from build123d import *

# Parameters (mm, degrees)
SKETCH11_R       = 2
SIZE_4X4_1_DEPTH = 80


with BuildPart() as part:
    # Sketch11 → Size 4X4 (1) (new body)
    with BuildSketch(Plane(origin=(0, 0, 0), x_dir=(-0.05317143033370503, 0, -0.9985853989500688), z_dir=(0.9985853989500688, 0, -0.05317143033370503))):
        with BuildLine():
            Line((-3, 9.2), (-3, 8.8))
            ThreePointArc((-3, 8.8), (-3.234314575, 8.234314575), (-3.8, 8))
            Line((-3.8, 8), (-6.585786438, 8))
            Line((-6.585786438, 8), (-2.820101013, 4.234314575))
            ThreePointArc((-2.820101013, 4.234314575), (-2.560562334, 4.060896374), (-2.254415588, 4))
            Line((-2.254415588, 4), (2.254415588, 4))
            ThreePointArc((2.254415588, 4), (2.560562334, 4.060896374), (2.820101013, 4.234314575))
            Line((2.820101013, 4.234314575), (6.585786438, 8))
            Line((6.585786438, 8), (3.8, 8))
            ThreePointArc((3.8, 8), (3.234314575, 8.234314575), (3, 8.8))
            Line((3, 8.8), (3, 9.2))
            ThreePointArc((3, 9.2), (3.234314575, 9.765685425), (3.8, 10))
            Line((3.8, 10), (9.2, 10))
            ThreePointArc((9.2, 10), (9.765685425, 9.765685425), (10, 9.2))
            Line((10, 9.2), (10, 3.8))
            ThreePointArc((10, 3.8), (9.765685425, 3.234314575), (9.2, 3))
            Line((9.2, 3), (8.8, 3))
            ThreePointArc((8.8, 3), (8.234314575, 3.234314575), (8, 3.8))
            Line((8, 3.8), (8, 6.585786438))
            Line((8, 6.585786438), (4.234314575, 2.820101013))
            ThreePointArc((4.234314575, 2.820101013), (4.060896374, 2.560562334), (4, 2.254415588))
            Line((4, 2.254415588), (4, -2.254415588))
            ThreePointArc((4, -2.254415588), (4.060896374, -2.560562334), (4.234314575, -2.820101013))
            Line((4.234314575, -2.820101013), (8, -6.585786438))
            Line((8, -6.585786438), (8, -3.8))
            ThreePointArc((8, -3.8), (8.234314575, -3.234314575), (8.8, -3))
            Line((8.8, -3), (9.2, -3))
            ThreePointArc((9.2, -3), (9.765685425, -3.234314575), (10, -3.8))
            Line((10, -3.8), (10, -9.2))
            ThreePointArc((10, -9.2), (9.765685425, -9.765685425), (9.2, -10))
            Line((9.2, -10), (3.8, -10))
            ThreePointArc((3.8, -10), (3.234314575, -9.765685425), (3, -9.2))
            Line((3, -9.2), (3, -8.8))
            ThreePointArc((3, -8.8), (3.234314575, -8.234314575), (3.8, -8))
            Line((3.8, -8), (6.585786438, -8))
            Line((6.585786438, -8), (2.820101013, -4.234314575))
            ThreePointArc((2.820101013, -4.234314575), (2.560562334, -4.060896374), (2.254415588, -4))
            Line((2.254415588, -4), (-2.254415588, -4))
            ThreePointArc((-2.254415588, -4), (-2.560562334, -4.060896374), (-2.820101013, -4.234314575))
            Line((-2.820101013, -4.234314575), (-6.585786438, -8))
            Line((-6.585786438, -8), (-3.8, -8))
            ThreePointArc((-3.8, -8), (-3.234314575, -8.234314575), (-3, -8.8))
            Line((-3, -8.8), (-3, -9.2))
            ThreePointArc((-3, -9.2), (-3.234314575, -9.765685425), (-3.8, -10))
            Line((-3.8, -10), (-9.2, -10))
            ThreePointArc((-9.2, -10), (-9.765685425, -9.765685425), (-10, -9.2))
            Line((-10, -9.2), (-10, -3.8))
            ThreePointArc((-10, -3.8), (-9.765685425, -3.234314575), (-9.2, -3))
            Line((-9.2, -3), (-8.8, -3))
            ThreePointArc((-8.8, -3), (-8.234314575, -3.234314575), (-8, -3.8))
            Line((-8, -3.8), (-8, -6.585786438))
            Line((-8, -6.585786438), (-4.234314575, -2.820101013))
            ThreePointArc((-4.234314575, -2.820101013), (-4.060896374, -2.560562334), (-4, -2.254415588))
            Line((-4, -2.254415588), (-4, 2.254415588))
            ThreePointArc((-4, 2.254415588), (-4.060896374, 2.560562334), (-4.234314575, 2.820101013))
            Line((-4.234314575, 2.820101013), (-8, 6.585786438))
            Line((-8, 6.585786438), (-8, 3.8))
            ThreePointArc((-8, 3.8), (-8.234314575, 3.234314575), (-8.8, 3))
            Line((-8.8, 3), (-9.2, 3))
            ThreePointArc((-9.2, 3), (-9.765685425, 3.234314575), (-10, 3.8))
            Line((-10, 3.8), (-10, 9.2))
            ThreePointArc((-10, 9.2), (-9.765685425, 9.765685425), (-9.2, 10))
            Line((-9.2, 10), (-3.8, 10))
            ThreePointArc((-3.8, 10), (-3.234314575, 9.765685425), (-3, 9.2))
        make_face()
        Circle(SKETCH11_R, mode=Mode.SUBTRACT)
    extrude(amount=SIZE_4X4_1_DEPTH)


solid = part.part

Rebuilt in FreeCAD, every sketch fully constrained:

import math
import FreeCAD as App
import Part
import Sketcher

doc = App.newDocument("Part")
body = doc.addObject("PartDesign::Body", "Body")

sketch1 = body.newObject("Sketcher::SketchObject", "Sketch")
sketch1.Placement = App.Placement(App.Vector(0, 0, 0), App.Rotation(App.Vector(-0.05317143, 0, -0.998585399), App.Vector(0, 1, 0), App.Vector(0.998585399, 0, -0.05317143), "ZXY"))
sketch1.addGeometry(Part.LineSegment(App.Vector(-3, 8.8, 0), App.Vector(-3, 9.2, 0)), False)
sketch1.addGeometry(Part.ArcOfCircle(Part.Circle(App.Vector(-3.8, 9.2, 0), App.Vector(0, 0, 1), 0.8), math.radians(0), math.radians(90)), False)
sketch1.addGeometry(Part.LineSegment(App.Vector(-3.8, 10, 0), App.Vector(-9.2, 10, 0)), False)
sketch1.addGeometry(Part.ArcOfCircle(Part.Circle(App.Vector(-9.2, 9.2, 0), App.Vector(0, 0, 1), 0.8), math.radians(90), math.radians(180)), False)
sketch1.addGeometry(Part.LineSegment(App.Vector(-10, 9.2, 0), App.Vector(-10, 3.8, 0)), False)
sketch1.addGeometry(Part.ArcOfCircle(Part.Circle(App.Vector(-9.2, 3.8, 0), App.Vector(0, 0, 1), 0.8), math.radians(180), math.radians(270)), False)
sketch1.addGeometry(Part.LineSegment(App.Vector(-9.2, 3, 0), App.Vector(-8.8, 3, 0)), False)
sketch1.addGeometry(Part.ArcOfCircle(Part.Circle(App.Vector(-8.8, 3.8, 0), App.Vector(0, 0, 1), 0.8), math.radians(-90), math.radians(0)), False)
sketch1.addGeometry(Part.LineSegment(App.Vector(-8, 3.8, 0), App.Vector(-8, 6.59, 0)), False)
sketch1.addGeometry(Part.LineSegment(App.Vector(-8, 6.59, 0), App.Vector(-4.23, 2.82, 0)), False)
sketch1.addGeometry(Part.ArcOfCircle(Part.Circle(App.Vector(-4.8, 2.25, 0), App.Vector(0, 0, 1), 0.8), math.radians(0), math.radians(45)), False)
sketch1.addGeometry(Part.LineSegment(App.Vector(-4, 2.25, 0), App.Vector(-4, -2.25, 0)), False)
sketch1.addGeometry(Part.ArcOfCircle(Part.Circle(App.Vector(-4.8, -2.25, 0), App.Vector(0, 0, 1), 0.8), math.radians(-45), math.radians(0)), False)
sketch1.addGeometry(Part.LineSegment(App.Vector(-4.23, -2.82, 0), App.Vector(-8, -6.59, 0)), False)
sketch1.addGeometry(Part.LineSegment(App.Vector(-8, -6.59, 0), App.Vector(-8, -3.8, 0)), False)
sketch1.addGeometry(Part.ArcOfCircle(Part.Circle(App.Vector(-8.8, -3.8, 0), App.Vector(0, 0, 1), 0.8), math.radians(0), math.radians(90)), False)
sketch1.addGeometry(Part.LineSegment(App.Vector(-8.8, -3, 0), App.Vector(-9.2, -3, 0)), False)
sketch1.addGeometry(Part.ArcOfCircle(Part.Circle(App.Vector(-9.2, -3.8, 0), App.Vector(0, 0, 1), 0.8), math.radians(90), math.radians(180)), False)
sketch1.addGeometry(Part.LineSegment(App.Vector(-10, -3.8, 0), App.Vector(-10, -9.2, 0)), False)
sketch1.addGeometry(Part.ArcOfCircle(Part.Circle(App.Vector(-9.2, -9.2, 0), App.Vector(0, 0, 1), 0.8), math.radians(180), math.radians(270)), False)
sketch1.addGeometry(Part.LineSegment(App.Vector(-9.2, -10, 0), App.Vector(-3.8, -10, 0)), False)
sketch1.addGeometry(Part.ArcOfCircle(Part.Circle(App.Vector(-3.8, -9.2, 0), App.Vector(0, 0, 1), 0.8), math.radians(-90), math.radians(0)), False)
sketch1.addGeometry(Part.LineSegment(App.Vector(-3, -9.2, 0), App.Vector(-3, -8.8, 0)), False)
sketch1.addGeometry(Part.ArcOfCircle(Part.Circle(App.Vector(-3.8, -8.8, 0), App.Vector(0, 0, 1), 0.8), math.radians(0), math.radians(90)), False)
sketch1.addGeometry(Part.LineSegment(App.Vector(-3.8, -8, 0), App.Vector(-6.59, -8, 0)), False)
sketch1.addGeometry(Part.LineSegment(App.Vector(-6.59, -8, 0), App.Vector(-2.82, -4.23, 0)), False)
sketch1.addGeometry(Part.ArcOfCircle(Part.Circle(App.Vector(-2.25, -4.8, 0), App.Vector(0, 0, 1), 0.8), math.radians(90), math.radians(135)), False)
sketch1.addGeometry(Part.LineSegment(App.Vector(-2.25, -4, 0), App.Vector(2.25, -4, 0)), False)
sketch1.addGeometry(Part.ArcOfCircle(Part.Circle(App.Vector(2.25, -4.8, 0), App.Vector(0, 0, 1), 0.8), math.radians(45), math.radians(90)), False)
sketch1.addGeometry(Part.LineSegment(App.Vector(2.82, -4.23, 0), App.Vector(6.59, -8, 0)), False)
sketch1.addGeometry(Part.LineSegment(App.Vector(6.59, -8, 0), App.Vector(3.8, -8, 0)), False)
sketch1.addGeometry(Part.ArcOfCircle(Part.Circle(App.Vector(3.8, -8.8, 0), App.Vector(0, 0, 1), 0.8), math.radians(90), math.radians(180)), False)
sketch1.addGeometry(Part.LineSegment(App.Vector(3, -8.8, 0), App.Vector(3, -9.2, 0)), False)
sketch1.addGeometry(Part.ArcOfCircle(Part.Circle(App.Vector(3.8, -9.2, 0), App.Vector(0, 0, 1), 0.8), math.radians(180), math.radians(270)), False)
sketch1.addGeometry(Part.LineSegment(App.Vector(3.8, -10, 0), App.Vector(9.2, -10, 0)), False)
sketch1.addGeometry(Part.ArcOfCircle(Part.Circle(App.Vector(9.2, -9.2, 0), App.Vector(0, 0, 1), 0.8), math.radians(-90), math.radians(0)), False)
sketch1.addGeometry(Part.LineSegment(App.Vector(10, -9.2, 0), App.Vector(10, -3.8, 0)), False)
sketch1.addGeometry(Part.ArcOfCircle(Part.Circle(App.Vector(9.2, -3.8, 0), App.Vector(0, 0, 1), 0.8), math.radians(0), math.radians(90)), False)
sketch1.addGeometry(Part.LineSegment(App.Vector(9.2, -3, 0), App.Vector(8.8, -3, 0)), False)
sketch1.addGeometry(Part.ArcOfCircle(Part.Circle(App.Vector(8.8, -3.8, 0), App.Vector(0, 0, 1), 0.8), math.radians(90), math.radians(180)), False)
sketch1.addGeometry(Part.LineSegment(App.Vector(8, -3.8, 0), App.Vector(8, -6.59, 0)), False)
sketch1.addGeometry(Part.LineSegment(App.Vector(8, -6.59, 0), App.Vector(4.23, -2.82, 0)), False)
sketch1.addGeometry(Part.ArcOfCircle(Part.Circle(App.Vector(4.8, -2.25, 0), App.Vector(0, 0, 1), 0.8), math.radians(180), math.radians(225)), False)
sketch1.addGeometry(Part.LineSegment(App.Vector(4, -2.25, 0), App.Vector(4, 2.25, 0)), False)
sketch1.addGeometry(Part.ArcOfCircle(Part.Circle(App.Vector(4.8, 2.25, 0), App.Vector(0, 0, 1), 0.8), math.radians(135), math.radians(180)), False)
sketch1.addGeometry(Part.LineSegment(App.Vector(4.23, 2.82, 0), App.Vector(8, 6.59, 0)), False)
sketch1.addGeometry(Part.LineSegment(App.Vector(8, 6.59, 0), App.Vector(8, 3.8, 0)), False)
sketch1.addGeometry(Part.ArcOfCircle(Part.Circle(App.Vector(8.8, 3.8, 0), App.Vector(0, 0, 1), 0.8), math.radians(180), math.radians(270)), False)
sketch1.addGeometry(Part.LineSegment(App.Vector(8.8, 3, 0), App.Vector(9.2, 3, 0)), False)
sketch1.addGeometry(Part.ArcOfCircle(Part.Circle(App.Vector(9.2, 3.8, 0), App.Vector(0, 0, 1), 0.8), math.radians(-90), math.radians(0)), False)
sketch1.addGeometry(Part.LineSegment(App.Vector(10, 3.8, 0), App.Vector(10, 9.2, 0)), False)
sketch1.addGeometry(Part.ArcOfCircle(Part.Circle(App.Vector(9.2, 9.2, 0), App.Vector(0, 0, 1), 0.8), math.radians(0), math.radians(90)), False)
sketch1.addGeometry(Part.LineSegment(App.Vector(9.2, 10, 0), App.Vector(3.8, 10, 0)), False)
sketch1.addGeometry(Part.ArcOfCircle(Part.Circle(App.Vector(3.8, 9.2, 0), App.Vector(0, 0, 1), 0.8), math.radians(90), math.radians(180)), False)
sketch1.addGeometry(Part.LineSegment(App.Vector(3, 9.2, 0), App.Vector(3, 8.8, 0)), False)
sketch1.addGeometry(Part.ArcOfCircle(Part.Circle(App.Vector(3.8, 8.8, 0), App.Vector(0, 0, 1), 0.8), math.radians(180), math.radians(270)), False)
sketch1.addGeometry(Part.LineSegment(App.Vector(3.8, 8, 0), App.Vector(6.59, 8, 0)), False)
sketch1.addGeometry(Part.LineSegment(App.Vector(6.59, 8, 0), App.Vector(2.82, 4.23, 0)), False)
sketch1.addGeometry(Part.ArcOfCircle(Part.Circle(App.Vector(2.25, 4.8, 0), App.Vector(0, 0, 1), 0.8), math.radians(-90), math.radians(-45)), False)
sketch1.addGeometry(Part.LineSegment(App.Vector(2.25, 4, 0), App.Vector(-2.25, 4, 0)), False)
sketch1.addGeometry(Part.ArcOfCircle(Part.Circle(App.Vector(-2.25, 4.8, 0), App.Vector(0, 0, 1), 0.8), math.radians(-135), math.radians(-90)), False)
sketch1.addGeometry(Part.LineSegment(App.Vector(-2.82, 4.23, 0), App.Vector(-6.59, 8, 0)), False)
sketch1.addGeometry(Part.LineSegment(App.Vector(-6.59, 8, 0), App.Vector(-3.8, 8, 0)), False)
sketch1.addGeometry(Part.ArcOfCircle(Part.Circle(App.Vector(-3.8, 8.8, 0), App.Vector(0, 0, 1), 0.8), math.radians(-90), math.radians(0)), False)
sketch1.addGeometry(Part.Circle(App.Vector(0, 0, 0), App.Vector(0, 0, 1), 2), False)
sketch1.addConstraint(Sketcher.Constraint("Tangent", 0, 2, 1, 1))
sketch1.addConstraint(Sketcher.Constraint("Tangent", 1, 2, 2, 1))
sketch1.addConstraint(Sketcher.Constraint("Tangent", 2, 2, 3, 1))
sketch1.addConstraint(Sketcher.Constraint("Tangent", 3, 2, 4, 1))
sketch1.addConstraint(Sketcher.Constraint("Tangent", 4, 2, 5, 1))
sketch1.addConstraint(Sketcher.Constraint("Tangent", 5, 2, 6, 1))
sketch1.addConstraint(Sketcher.Constraint("Tangent", 6, 2, 7, 1))
sketch1.addConstraint(Sketcher.Constraint("Tangent", 7, 2, 8, 1))
sketch1.addConstraint(Sketcher.Constraint("Coincident", 8, 2, 9, 1))
sketch1.addConstraint(Sketcher.Constraint("Tangent", 9, 2, 10, 2))
sketch1.addConstraint(Sketcher.Constraint("Tangent", 10, 1, 11, 1))
sketch1.addConstraint(Sketcher.Constraint("Tangent", 11, 2, 12, 2))
sketch1.addConstraint(Sketcher.Constraint("Tangent", 12, 1, 13, 1))
sketch1.addConstraint(Sketcher.Constraint("Coincident", 13, 2, 14, 1))
sketch1.addConstraint(Sketcher.Constraint("Tangent", 14, 2, 15, 1))
sketch1.addConstraint(Sketcher.Constraint("Tangent", 15, 2, 16, 1))
sketch1.addConstraint(Sketcher.Constraint("Tangent", 16, 2, 17, 1))
sketch1.addConstraint(Sketcher.Constraint("Tangent", 17, 2, 18, 1))
sketch1.addConstraint(Sketcher.Constraint("Tangent", 18, 2, 19, 1))
sketch1.addConstraint(Sketcher.Constraint("Tangent", 19, 2, 20, 1))
sketch1.addConstraint(Sketcher.Constraint("Tangent", 20, 2, 21, 1))
sketch1.addConstraint(Sketcher.Constraint("Tangent", 21, 2, 22, 1))
sketch1.addConstraint(Sketcher.Constraint("Tangent", 22, 2, 23, 1))
sketch1.addConstraint(Sketcher.Constraint("Tangent", 23, 2, 24, 1))
sketch1.addConstraint(Sketcher.Constraint("Coincident", 24, 2, 25, 1))
sketch1.addConstraint(Sketcher.Constraint("Tangent", 25, 2, 26, 2))
sketch1.addConstraint(Sketcher.Constraint("Tangent", 26, 1, 27, 1))
sketch1.addConstraint(Sketcher.Constraint("Tangent", 27, 2, 28, 2))
sketch1.addConstraint(Sketcher.Constraint("Tangent", 28, 1, 29, 1))
sketch1.addConstraint(Sketcher.Constraint("Coincident", 29, 2, 30, 1))
sketch1.addConstraint(Sketcher.Constraint("Tangent", 30, 2, 31, 1))
sketch1.addConstraint(Sketcher.Constraint("Tangent", 31, 2, 32, 1))
sketch1.addConstraint(Sketcher.Constraint("Tangent", 32, 2, 33, 1))
sketch1.addConstraint(Sketcher.Constraint("Tangent", 33, 2, 34, 1))
sketch1.addConstraint(Sketcher.Constraint("Tangent", 34, 2, 35, 1))
sketch1.addConstraint(Sketcher.Constraint("Tangent", 35, 2, 36, 1))
sketch1.addConstraint(Sketcher.Constraint("Tangent", 36, 2, 37, 1))
sketch1.addConstraint(Sketcher.Constraint("Tangent", 37, 2, 38, 1))
sketch1.addConstraint(Sketcher.Constraint("Tangent", 38, 2, 39, 1))
sketch1.addConstraint(Sketcher.Constraint("Tangent", 39, 2, 40, 1))
sketch1.addConstraint(Sketcher.Constraint("Coincident", 40, 2, 41, 1))
sketch1.addConstraint(Sketcher.Constraint("Tangent", 41, 2, 42, 2))
sketch1.addConstraint(Sketcher.Constraint("Tangent", 42, 1, 43, 1))
sketch1.addConstraint(Sketcher.Constraint("Tangent", 43, 2, 44, 2))
sketch1.addConstraint(Sketcher.Constraint("Tangent", 44, 1, 45, 1))
sketch1.addConstraint(Sketcher.Constraint("Coincident", 45, 2, 46, 1))
sketch1.addConstraint(Sketcher.Constraint("Tangent", 46, 2, 47, 1))
sketch1.addConstraint(Sketcher.Constraint("Tangent", 47, 2, 48, 1))
sketch1.addConstraint(Sketcher.Constraint("Tangent", 48, 2, 49, 1))
sketch1.addConstraint(Sketcher.Constraint("Tangent", 49, 2, 50, 1))
sketch1.addConstraint(Sketcher.Constraint("Tangent", 50, 2, 51, 1))
sketch1.addConstraint(Sketcher.Constraint("Tangent", 51, 2, 52, 1))
sketch1.addConstraint(Sketcher.Constraint("Tangent", 52, 2, 53, 1))
sketch1.addConstraint(Sketcher.Constraint("Tangent", 53, 2, 54, 1))
sketch1.addConstraint(Sketcher.Constraint("Tangent", 54, 2, 55, 1))
sketch1.addConstraint(Sketcher.Constraint("Tangent", 55, 2, 56, 1))
sketch1.addConstraint(Sketcher.Constraint("Coincident", 56, 2, 57, 1))
sketch1.addConstraint(Sketcher.Constraint("Tangent", 57, 2, 58, 2))
sketch1.addConstraint(Sketcher.Constraint("Tangent", 58, 1, 59, 1))
sketch1.addConstraint(Sketcher.Constraint("Tangent", 59, 2, 60, 2))
sketch1.addConstraint(Sketcher.Constraint("Tangent", 60, 1, 61, 1))
sketch1.addConstraint(Sketcher.Constraint("Coincident", 61, 2, 62, 1))
sketch1.addConstraint(Sketcher.Constraint("Tangent", 62, 2, 63, 1))
sketch1.addConstraint(Sketcher.Constraint("Tangent", 63, 2, 0, 1))
sketch1.addConstraint(Sketcher.Constraint("Vertical", 0))
sketch1.addConstraint(Sketcher.Constraint("Horizontal", 2))
sketch1.addConstraint(Sketcher.Constraint("Vertical", 4))
sketch1.addConstraint(Sketcher.Constraint("Horizontal", 6))
sketch1.addConstraint(Sketcher.Constraint("Vertical", 8))
sketch1.addConstraint(Sketcher.Constraint("Vertical", 11))
sketch1.addConstraint(Sketcher.Constraint("Vertical", 14))
sketch1.addConstraint(Sketcher.Constraint("Horizontal", 16))
sketch1.addConstraint(Sketcher.Constraint("Vertical", 18))
sketch1.addConstraint(Sketcher.Constraint("Horizontal", 20))
sketch1.addConstraint(Sketcher.Constraint("Vertical", 22))
sketch1.addConstraint(Sketcher.Constraint("Horizontal", 24))
sketch1.addConstraint(Sketcher.Constraint("Horizontal", 27))
sketch1.addConstraint(Sketcher.Constraint("Horizontal", 30))
sketch1.addConstraint(Sketcher.Constraint("Vertical", 32))
sketch1.addConstraint(Sketcher.Constraint("Horizontal", 34))
sketch1.addConstraint(Sketcher.Constraint("Vertical", 36))
sketch1.addConstraint(Sketcher.Constraint("Horizontal", 38))
sketch1.addConstraint(Sketcher.Constraint("Vertical", 40))
sketch1.addConstraint(Sketcher.Constraint("Vertical", 43))
sketch1.addConstraint(Sketcher.Constraint("Vertical", 46))
sketch1.addConstraint(Sketcher.Constraint("Horizontal", 48))
sketch1.addConstraint(Sketcher.Constraint("Vertical", 50))
sketch1.addConstraint(Sketcher.Constraint("Horizontal", 52))
sketch1.addConstraint(Sketcher.Constraint("Vertical", 54))
sketch1.addConstraint(Sketcher.Constraint("Horizontal", 56))
sketch1.addConstraint(Sketcher.Constraint("Horizontal", 59))
sketch1.addConstraint(Sketcher.Constraint("Horizontal", 62))
sketch1.addConstraint(Sketcher.Constraint("Coincident", 64, 3, -1, 1))
sketch1.addConstraint(Sketcher.Constraint("Equal", 1, 3))
sketch1.addConstraint(Sketcher.Constraint("Equal", 3, 5))
sketch1.addConstraint(Sketcher.Constraint("Equal", 5, 7))
sketch1.addConstraint(Sketcher.Constraint("Equal", 7, 10))
sketch1.addConstraint(Sketcher.Constraint("Equal", 10, 12))
sketch1.addConstraint(Sketcher.Constraint("Equal", 12, 15))
sketch1.addConstraint(Sketcher.Constraint("Equal", 15, 17))
sketch1.addConstraint(Sketcher.Constraint("Equal", 17, 19))
sketch1.addConstraint(Sketcher.Constraint("Equal", 19, 21))
sketch1.addConstraint(Sketcher.Constraint("Equal", 21, 23))
sketch1.addConstraint(Sketcher.Constraint("Equal", 23, 26))
sketch1.addConstraint(Sketcher.Constraint("Equal", 26, 28))
sketch1.addConstraint(Sketcher.Constraint("Equal", 28, 31))
sketch1.addConstraint(Sketcher.Constraint("Equal", 31, 33))
sketch1.addConstraint(Sketcher.Constraint("Equal", 33, 35))
sketch1.addConstraint(Sketcher.Constraint("Equal", 35, 37))
sketch1.addConstraint(Sketcher.Constraint("Equal", 37, 39))
sketch1.addConstraint(Sketcher.Constraint("Equal", 39, 42))
sketch1.addConstraint(Sketcher.Constraint("Equal", 42, 44))
sketch1.addConstraint(Sketcher.Constraint("Equal", 44, 47))
sketch1.addConstraint(Sketcher.Constraint("Equal", 47, 49))
sketch1.addConstraint(Sketcher.Constraint("Equal", 49, 51))
sketch1.addConstraint(Sketcher.Constraint("Equal", 51, 53))
sketch1.addConstraint(Sketcher.Constraint("Equal", 53, 55))
sketch1.addConstraint(Sketcher.Constraint("Equal", 55, 58))
sketch1.addConstraint(Sketcher.Constraint("Equal", 58, 60))
sketch1.addConstraint(Sketcher.Constraint("Equal", 60, 63))
sketch1.addConstraint(Sketcher.Constraint("Symmetric", 1, 3, 33, 3, -1, 1))
sketch1.addConstraint(Sketcher.Constraint("Symmetric", 5, 3, 37, 3, -1, 1))
sketch1.addConstraint(Sketcher.Constraint("Symmetric", 10, 3, 42, 3, -1, 1))
sketch1.addConstraint(Sketcher.Constraint("Symmetric", 15, 3, 47, 3, -1, 1))
sketch1.addConstraint(Sketcher.Constraint("Symmetric", 19, 3, 51, 3, -1, 1))
sketch1.addConstraint(Sketcher.Constraint("Symmetric", 23, 3, 55, 3, -1, 1))
sketch1.addConstraint(Sketcher.Constraint("Symmetric", 26, 3, 58, 3, -1, 1))
sketch1.addConstraint(Sketcher.Constraint("Symmetric", 8, 2, 40, 2, -1, 1))
sketch1.addConstraint(Sketcher.Constraint("Symmetric", 12, 1, 44, 1, -1, 1))
sketch1.addConstraint(Sketcher.Constraint("Symmetric", 28, 1, 60, 1, -1, 1))
sketch1.addConstraint(Sketcher.Constraint("Symmetric", 23, 3, 31, 3, -2))
sketch1.addConstraint(Sketcher.Constraint("Symmetric", 19, 3, 35, 3, -2))
sketch1.addConstraint(Sketcher.Constraint("Symmetric", 15, 3, 39, 3, -2))
sketch1.addConstraint(Sketcher.Constraint("Symmetric", 25, 2, 28, 1, -2))
sketch1.addConstraint(Sketcher.Constraint("Symmetric", 12, 1, 41, 2, -2))
sketch1.addConstraint(Sketcher.Constraint("Symmetric", 56, 2, 61, 2, -2))
sketch1.addConstraint(Sketcher.Constraint("Perpendicular", 9, 13))
sketch1.addConstraint(Sketcher.Constraint("Parallel", 13, 25))
sketch1.addConstraint(Sketcher.Constraint("Equal", 48, 0))
sketch1.addConstraint(Sketcher.Constraint("Equal", 52, 4))
sketch1.addConstraint(Sketcher.Constraint("Equal", 62, 8))
sketch1.addConstraint(Sketcher.Constraint("Equal", 59, 11))
sketch1.addConstraint(Sketcher.Constraint("Equal", 13, 25))
sketch1.addConstraint(Sketcher.Constraint("Diameter", 64, 4.0))
sketch1.addConstraint(Sketcher.Constraint("Radius", 1, 0.8))
sketch1.addConstraint(Sketcher.Constraint("DistanceX", 2, 2, 2, 1, 5.4))
sketch1.addConstraint(Sketcher.Constraint("DistanceX", 6, 1, 6, 2, 0.4))
sketch1.addConstraint(Sketcher.Constraint("DistanceX", 0, 2, -1, 1, 3.0))
sketch1.addConstraint(Sketcher.Constraint("DistanceX", 10, 1, -1, 1, 4.0))
sketch1.addConstraint(Sketcher.Constraint("DistanceX", 27, 1, 27, 2, 4.508831))
pad1 = body.newObject("PartDesign::Pad", "Pad")
pad1.Profile = sketch1
pad1.Length = 80

doc.recompute()
